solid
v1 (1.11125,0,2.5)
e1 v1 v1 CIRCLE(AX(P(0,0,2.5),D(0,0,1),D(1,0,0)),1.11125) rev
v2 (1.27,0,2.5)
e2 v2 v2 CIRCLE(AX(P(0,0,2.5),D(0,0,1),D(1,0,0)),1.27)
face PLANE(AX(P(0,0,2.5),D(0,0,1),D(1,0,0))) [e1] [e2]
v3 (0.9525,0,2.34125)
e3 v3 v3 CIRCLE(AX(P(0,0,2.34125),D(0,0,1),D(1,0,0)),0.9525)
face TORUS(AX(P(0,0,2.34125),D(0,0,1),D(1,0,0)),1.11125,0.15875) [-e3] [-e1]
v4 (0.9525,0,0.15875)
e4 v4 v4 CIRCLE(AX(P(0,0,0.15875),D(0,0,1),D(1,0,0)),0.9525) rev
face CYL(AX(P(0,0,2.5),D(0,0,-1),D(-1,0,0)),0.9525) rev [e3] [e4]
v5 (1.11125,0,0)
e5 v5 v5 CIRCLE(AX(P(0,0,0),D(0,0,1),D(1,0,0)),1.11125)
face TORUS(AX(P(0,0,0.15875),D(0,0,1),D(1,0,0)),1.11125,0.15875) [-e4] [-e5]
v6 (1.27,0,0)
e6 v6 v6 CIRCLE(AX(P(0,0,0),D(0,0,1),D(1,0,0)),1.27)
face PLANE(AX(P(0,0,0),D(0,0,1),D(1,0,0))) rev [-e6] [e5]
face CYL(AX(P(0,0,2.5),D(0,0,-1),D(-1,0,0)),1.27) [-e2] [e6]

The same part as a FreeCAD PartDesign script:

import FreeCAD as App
import Part
import Sketcher
Q = App.Units.Quantity


def edges_at(feature, points):
    """Names of the edges that pass closest to the given points."""
    edges = feature.Shape.Edges
    near = lambda p: min(range(len(edges)), key=lambda i: edges[i].distToShape(Part.Vertex(*p))[0])
    return sorted({f"Edge{near(p) + 1}" for p in points})

doc = App.newDocument("Part")
body = doc.addObject("PartDesign::Body", "Body")

sketch1 = body.newObject("Sketcher::SketchObject", "Sketch")
sketch1.AttachmentSupport = (doc.getObject("XY_Plane"), [""])
sketch1.MapMode = "FlatFace"
sketch1.addGeometry([
    Part.Circle(App.Vector(0, 0, 0), App.Vector(0, 0, 1), 1.3),
    Part.Circle(App.Vector(0, 0, 0), App.Vector(0, 0, 1), 1),
], False)
sketch1.addConstraint([
    Sketcher.Constraint("Coincident", 0, 3, -1, 1),
    Sketcher.Constraint("Coincident", 1, 3, -1, 1),
    Sketcher.Constraint("Diameter", 0, Q("0.1 in")),
    Sketcher.Constraint("Diameter", 1, Q("0.075 in")),
])
pad1 = body.newObject("PartDesign::Pad", "Pad")
pad1.Profile = sketch1
pad1.Length = 2.5
doc.recompute()

fillet = body.newObject("PartDesign::Fillet", "Fillet")
fillet.Base = (pad1, edges_at(pad1, [(-0.953, 0, 0), (-0.953, 0, 2.5)]))
fillet.Radius = 0.15875

doc.recompute()
